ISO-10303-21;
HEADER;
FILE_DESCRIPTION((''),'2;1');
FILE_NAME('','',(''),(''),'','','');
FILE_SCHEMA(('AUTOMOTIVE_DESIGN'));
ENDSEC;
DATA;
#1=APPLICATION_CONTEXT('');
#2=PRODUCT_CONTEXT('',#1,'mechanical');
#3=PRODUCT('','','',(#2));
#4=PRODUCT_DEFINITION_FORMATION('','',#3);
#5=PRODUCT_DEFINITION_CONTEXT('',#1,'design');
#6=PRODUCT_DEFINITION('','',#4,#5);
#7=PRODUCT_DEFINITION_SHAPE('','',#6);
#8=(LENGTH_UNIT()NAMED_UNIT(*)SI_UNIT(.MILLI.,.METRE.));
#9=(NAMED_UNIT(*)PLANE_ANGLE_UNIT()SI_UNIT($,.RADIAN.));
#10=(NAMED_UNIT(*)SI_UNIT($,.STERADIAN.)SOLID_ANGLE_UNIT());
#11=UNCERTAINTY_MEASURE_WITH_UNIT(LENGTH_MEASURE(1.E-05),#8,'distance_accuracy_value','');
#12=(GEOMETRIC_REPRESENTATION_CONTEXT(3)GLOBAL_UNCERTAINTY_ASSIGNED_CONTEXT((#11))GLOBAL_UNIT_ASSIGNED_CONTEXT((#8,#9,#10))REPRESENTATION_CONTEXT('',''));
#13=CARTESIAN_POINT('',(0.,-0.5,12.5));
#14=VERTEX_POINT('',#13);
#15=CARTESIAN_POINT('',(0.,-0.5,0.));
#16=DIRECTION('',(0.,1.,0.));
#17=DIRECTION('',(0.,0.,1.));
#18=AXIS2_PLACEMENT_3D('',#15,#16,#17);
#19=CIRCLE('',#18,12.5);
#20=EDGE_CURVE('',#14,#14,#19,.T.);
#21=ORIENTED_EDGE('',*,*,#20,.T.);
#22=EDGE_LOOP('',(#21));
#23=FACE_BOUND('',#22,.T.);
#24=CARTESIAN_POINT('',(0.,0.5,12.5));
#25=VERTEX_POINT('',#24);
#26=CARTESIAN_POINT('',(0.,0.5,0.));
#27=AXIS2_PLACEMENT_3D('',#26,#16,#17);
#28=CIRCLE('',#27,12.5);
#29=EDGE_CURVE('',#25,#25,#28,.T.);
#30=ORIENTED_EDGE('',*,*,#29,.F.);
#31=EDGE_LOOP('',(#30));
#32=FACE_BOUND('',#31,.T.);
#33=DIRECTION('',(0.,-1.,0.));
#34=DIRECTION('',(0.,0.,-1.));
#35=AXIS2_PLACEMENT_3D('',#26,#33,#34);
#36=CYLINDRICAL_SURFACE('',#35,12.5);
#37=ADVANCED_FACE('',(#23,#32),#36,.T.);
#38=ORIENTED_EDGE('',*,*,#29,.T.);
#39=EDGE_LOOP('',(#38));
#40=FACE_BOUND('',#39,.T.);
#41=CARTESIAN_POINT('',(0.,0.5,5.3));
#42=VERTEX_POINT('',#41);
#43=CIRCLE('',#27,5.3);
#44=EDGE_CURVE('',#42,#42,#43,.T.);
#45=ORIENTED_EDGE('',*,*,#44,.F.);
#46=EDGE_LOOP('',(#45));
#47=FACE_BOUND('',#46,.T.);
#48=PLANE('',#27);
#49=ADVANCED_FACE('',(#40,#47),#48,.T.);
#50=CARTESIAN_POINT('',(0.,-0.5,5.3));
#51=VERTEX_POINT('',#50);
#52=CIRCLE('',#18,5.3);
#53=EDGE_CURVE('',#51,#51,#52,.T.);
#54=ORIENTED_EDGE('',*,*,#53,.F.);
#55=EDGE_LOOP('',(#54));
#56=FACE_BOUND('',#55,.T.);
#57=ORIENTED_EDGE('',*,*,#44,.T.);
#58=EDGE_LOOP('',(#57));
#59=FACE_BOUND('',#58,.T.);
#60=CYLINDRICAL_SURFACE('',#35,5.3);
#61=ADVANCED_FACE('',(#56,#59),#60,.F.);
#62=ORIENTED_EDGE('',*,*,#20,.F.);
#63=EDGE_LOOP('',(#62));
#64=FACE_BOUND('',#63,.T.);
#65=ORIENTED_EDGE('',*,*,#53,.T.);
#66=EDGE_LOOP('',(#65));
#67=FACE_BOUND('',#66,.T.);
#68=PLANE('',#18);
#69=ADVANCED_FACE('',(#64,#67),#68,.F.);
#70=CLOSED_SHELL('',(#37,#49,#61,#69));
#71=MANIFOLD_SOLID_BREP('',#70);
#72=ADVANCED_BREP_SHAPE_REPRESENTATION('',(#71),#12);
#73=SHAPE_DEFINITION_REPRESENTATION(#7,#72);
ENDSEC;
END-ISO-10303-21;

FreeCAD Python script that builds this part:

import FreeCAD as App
import Part
import Sketcher
from FreeCAD import Vector
Q = App.Units.Quantity

doc = App.newDocument("Part")
params = doc.addObject("Spreadsheet::Sheet", "Params")
for row, (alias, value) in enumerate([
    ("sketch1_diameter", "25 mm"),
    ("sketch1_diameter2", "10.6 mm"),
    ("pad1_length", "1 mm"),
], start=1):
    params.set(f"A{row}", alias)
    params.set(f"B{row}", "=" + value)
    params.setAlias(f"B{row}", alias)

body = doc.addObject("PartDesign::Body", "Body")

# Sketch on XZ plane
sketch1 = body.newObject("Sketcher::SketchObject", "Sketch")
sketch1.AttachmentSupport = (doc.getObject("XZ_Plane"), [""])
sketch1.MapMode = "FlatFace"
sketch1.addGeometry([
    Part.Circle(Vector(0, 0, 0), Vector(0, 0, 1), 12),
    Part.Circle(Vector(0, 0, 0), Vector(0, 0, 1), 5),
], False)
sketch1.addConstraint([
    Sketcher.Constraint("Coincident", 0, 3, -1, 1),
    Sketcher.Constraint("Coincident", 1, 3, -1, 1),
    Sketcher.Constraint("Diameter", 0, Q("25 mm")),
    Sketcher.Constraint("Diameter", 1, Q("10.6 mm")),
])
sketch1.setExpression("Constraints[2]", "Params.sketch1_diameter")
sketch1.setExpression("Constraints[3]", "Params.sketch1_diameter2")
pad1 = body.newObject("PartDesign::Pad", "Pad")
pad1.Profile = sketch1
pad1.setExpression("Length", "Params.pad1_length")
pad1.Midplane = True

doc.recompute()
